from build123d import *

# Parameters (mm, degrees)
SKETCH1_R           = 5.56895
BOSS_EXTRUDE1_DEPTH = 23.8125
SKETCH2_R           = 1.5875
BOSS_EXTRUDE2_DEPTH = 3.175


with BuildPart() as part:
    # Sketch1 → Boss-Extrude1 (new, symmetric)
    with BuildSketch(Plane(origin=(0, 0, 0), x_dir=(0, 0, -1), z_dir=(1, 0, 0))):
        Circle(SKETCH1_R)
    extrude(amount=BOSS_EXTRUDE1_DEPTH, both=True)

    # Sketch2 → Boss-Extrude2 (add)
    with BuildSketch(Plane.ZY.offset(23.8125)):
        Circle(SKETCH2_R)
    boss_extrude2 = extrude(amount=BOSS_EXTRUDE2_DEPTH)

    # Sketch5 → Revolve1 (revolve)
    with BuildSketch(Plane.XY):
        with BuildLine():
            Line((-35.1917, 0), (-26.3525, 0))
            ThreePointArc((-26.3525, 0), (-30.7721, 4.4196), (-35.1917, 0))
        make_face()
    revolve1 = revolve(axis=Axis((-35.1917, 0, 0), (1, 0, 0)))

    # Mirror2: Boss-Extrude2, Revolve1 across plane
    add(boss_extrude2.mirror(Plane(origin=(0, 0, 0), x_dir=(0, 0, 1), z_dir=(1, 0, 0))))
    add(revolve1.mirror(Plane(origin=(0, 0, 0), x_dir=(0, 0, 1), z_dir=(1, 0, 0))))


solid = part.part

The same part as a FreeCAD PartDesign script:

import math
import FreeCAD as App
import Part
import Sketcher
from FreeCAD import Vector
Q = App.Units.Quantity

doc = App.newDocument("Part")
body = doc.addObject("PartDesign::Body", "Body")

sketch1 = doc.addObject("Sketcher::SketchObject", "Sketch")
body.addObject(sketch1)
sketch1.AttachmentSupport = (doc.YZ_Plane, [""])
sketch1.MapMode = "FlatFace"
sketch1.addGeometry(Part.Circle(Vector(0, 0, 0), Vector(0, 0, 1), 5.56895), False)
sketch1.addConstraint(Sketcher.Constraint("Coincident", 0, 3, -1, 1))
sketch1.addConstraint(Sketcher.Constraint("Diameter", 0, Q("0.4385 in")))
pad1 = doc.addObject("PartDesign::Pad", "Pad")
body.addObject(pad1)
pad1.Profile = sketch1
pad1.Length = Q("1.875 in")
pad1.Midplane = True

sketch2 = doc.addObject("Sketcher::SketchObject", "Sketch001")
body.addObject(sketch2)
sketch2.AttachmentSupport = (doc.YZ_Plane, [""])
sketch2.MapMode = "FlatFace"
sketch2.AttachmentOffset = App.Placement(Vector(0, 0, -0.9375 * 25.4), App.Rotation())
sketch2.addGeometry(Part.Circle(Vector(0, 0, 0), Vector(0, 0, 1), 1.5875), False)
sketch2.addConstraint(Sketcher.Constraint("Coincident", 0, 3, -1, 1))
sketch2.addConstraint(Sketcher.Constraint("Diameter", 0, Q("0.125 in")))
pad2 = doc.addObject("PartDesign::Pad", "Pad001")
body.addObject(pad2)
pad2.Profile = sketch2
pad2.Length = Q("0.125 in")
pad2.Reversed = True

sketch3 = doc.addObject("Sketcher::SketchObject", "Sketch002")
body.addObject(sketch3)
sketch3.AttachmentSupport = (doc.XY_Plane, [""])
sketch3.MapMode = "FlatFace"
sketch3.addGeometry(Part.LineSegment(Vector(-35.1917, 0, 0), Vector(-26.3525, 0, 0)), False)
sketch3.addGeometry(Part.ArcOfCircle(Part.Circle(Vector(-30.7721, 0, 0), Vector(0, 0, 1), 4.4196), math.radians(0), math.radians(180)), False)
sketch3.addConstraint(Sketcher.Constraint("Coincident", 0, 1, 1, 2))
sketch3.addConstraint(Sketcher.Constraint("Coincident", 1, 1, 0, 2))
sketch3.addConstraint(Sketcher.Constraint("Horizontal", 0))
sketch3.addConstraint(Sketcher.Constraint("PointOnObject", 1, 3, -1))
sketch3.addConstraint(Sketcher.Constraint("PointOnObject", 0, 1, -1))
sketch3.addConstraint(Sketcher.Constraint("Radius", 1, Q("0.174 in")))
sketch3.addConstraint(Sketcher.Constraint("DistanceX", 1, 3, -1, 1, Q("1.2115 in")))
revolution = doc.addObject("PartDesign::Revolution", "Revolution")
body.addObject(revolution)
revolution.Profile = sketch3
revolution.ReferenceAxis = (sketch3, ["H_Axis"])
revolution.Angle = 360
doc.recompute()

mirrored = doc.addObject("PartDesign::Mirrored", "Mirrored")
body.addObject(mirrored)
mirrored.Originals = [pad2, revolution]
mirrored.MirrorPlane = (doc.YZ_Plane, [""])
body.Tip = mirrored

doc.recompute()
